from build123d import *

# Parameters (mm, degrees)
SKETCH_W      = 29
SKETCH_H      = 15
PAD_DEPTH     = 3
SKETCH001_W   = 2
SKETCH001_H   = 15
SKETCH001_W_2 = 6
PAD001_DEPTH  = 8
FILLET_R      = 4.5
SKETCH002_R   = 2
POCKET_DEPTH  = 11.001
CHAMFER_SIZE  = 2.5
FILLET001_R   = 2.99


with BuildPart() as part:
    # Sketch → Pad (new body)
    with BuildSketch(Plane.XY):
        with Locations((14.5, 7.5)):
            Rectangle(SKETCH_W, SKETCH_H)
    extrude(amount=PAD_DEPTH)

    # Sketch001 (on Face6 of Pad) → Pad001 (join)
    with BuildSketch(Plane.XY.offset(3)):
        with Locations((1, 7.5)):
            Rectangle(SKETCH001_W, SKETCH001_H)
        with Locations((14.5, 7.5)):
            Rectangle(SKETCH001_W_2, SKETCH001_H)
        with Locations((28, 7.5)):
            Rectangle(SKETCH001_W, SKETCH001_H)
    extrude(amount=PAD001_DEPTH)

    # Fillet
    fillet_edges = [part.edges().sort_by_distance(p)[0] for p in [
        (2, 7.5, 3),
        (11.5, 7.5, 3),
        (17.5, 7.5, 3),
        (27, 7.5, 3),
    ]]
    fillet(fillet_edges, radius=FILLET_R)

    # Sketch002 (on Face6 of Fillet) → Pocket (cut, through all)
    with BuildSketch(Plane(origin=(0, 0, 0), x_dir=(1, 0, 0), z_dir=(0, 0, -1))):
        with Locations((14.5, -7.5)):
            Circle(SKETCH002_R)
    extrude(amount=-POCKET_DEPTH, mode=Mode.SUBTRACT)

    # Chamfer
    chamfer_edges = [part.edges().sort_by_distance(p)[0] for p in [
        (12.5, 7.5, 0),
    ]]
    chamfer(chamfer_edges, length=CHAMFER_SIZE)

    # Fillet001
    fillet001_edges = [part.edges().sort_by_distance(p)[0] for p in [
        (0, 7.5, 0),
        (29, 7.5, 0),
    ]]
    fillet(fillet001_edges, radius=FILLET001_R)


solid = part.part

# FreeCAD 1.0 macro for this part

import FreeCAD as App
import Part
import Sketcher


def edges_at(feature, points):
    """Names of the edges that pass closest to the given points."""
    edges = feature.Shape.Edges
    near = lambda p: min(range(len(edges)), key=lambda i: edges[i].distToShape(Part.Vertex(*p))[0])
    return sorted({f"Edge{near(p) + 1}" for p in points})


def add_polygon(sketch, points):
    """Adds a closed chain of lines whose ends are joined by coincident constraints."""
    first, n = sketch.GeometryCount, len(points)
    for a, b in zip(points, points[1:] + points[:1]):
        sketch.addGeometry(Part.LineSegment(App.Vector(*a, 0), App.Vector(*b, 0)), False)
    for i in range(n):
        sketch.addConstraint(Sketcher.Constraint("Coincident", first + i, 2, first + (i + 1) % n, 1))

doc = App.newDocument("Part")
body = doc.addObject("PartDesign::Body", "Body")

sketch1 = body.newObject("Sketcher::SketchObject", "Sketch")
sketch1.AttachmentSupport = (doc.getObject("XY_Plane"), [""])
sketch1.MapMode = "FlatFace"
add_polygon(sketch1, [(0, 15), (0, 0), (29, 0), (29, 15)])
sketch1.addConstraint([
    Sketcher.Constraint("Vertical", 0),
    Sketcher.Constraint("Horizontal", 1),
    Sketcher.Constraint("Vertical", 2),
    Sketcher.Constraint("Horizontal", 3),
    Sketcher.Constraint("Coincident", 0, 2, -1, 1),
    Sketcher.Constraint("DistanceX", 1, 1, 1, 2, 29.0),
    Sketcher.Constraint("DistanceY", 0, 2, 0, 1, 15.0),
])
pad1 = body.newObject("PartDesign::Pad", "Pad")
pad1.Profile = sketch1
pad1.Length = 3

sketch2 = body.newObject("Sketcher::SketchObject", "Sketch001")
sketch2.AttachmentSupport = (doc.getObject("XY_Plane"), [""])
sketch2.MapMode = "FlatFace"
sketch2.AttachmentOffset = App.Placement(App.Vector(0, 0, 3), App.Rotation())
add_polygon(sketch2, [(0, 15), (0, 0), (2, 0), (2, 15)])
add_polygon(sketch2, [(11.5, 15), (11.5, 0), (17.5, 0), (17.5, 15)])
add_polygon(sketch2, [(27, 15), (27, 0), (29, 0), (29, 15)])
sketch2.addConstraint([
    Sketcher.Constraint("Vertical", 0),
    Sketcher.Constraint("Horizontal", 1),
    Sketcher.Constraint("Vertical", 2),
    Sketcher.Constraint("Horizontal", 3),
    Sketcher.Constraint("Vertical", 4),
    Sketcher.Constraint("Horizontal", 5),
    Sketcher.Constraint("Vertical", 6),
    Sketcher.Constraint("Horizontal", 7),
    Sketcher.Constraint("Vertical", 8),
    Sketcher.Constraint("Horizontal", 9),
    Sketcher.Constraint("Vertical", 10),
    Sketcher.Constraint("Horizontal", 11),
    Sketcher.Constraint("Coincident", 0, 2, -1, 1),
    Sketcher.Constraint("PointOnObject", 4, 2, -1),
    Sketcher.Constraint("PointOnObject", 8, 2, -1),
    Sketcher.Constraint("Horizontal", 3, 2, 6, 2),
    Sketcher.Constraint("Horizontal", 7, 2, 10, 2),
    Sketcher.Constraint("Equal", 3, 9),
    Sketcher.Constraint("DistanceX", 1, 1, 1, 2, 2.0),
    Sketcher.Constraint("DistanceX", 5, 1, 5, 2, 6.0),
    Sketcher.Constraint("DistanceY", 0, 2, 0, 1, 15.0),
    Sketcher.Constraint("DistanceX", -1, 1, 8, 2, 27.0),
    Sketcher.Constraint("DistanceX", -1, 1, 4, 2, 11.5),
])
pad2 = body.newObject("PartDesign::Pad", "Pad001")
pad2.Profile = sketch2
pad2.Length = 8
doc.recompute()

fillet = body.newObject("PartDesign::Fillet", "Fillet")
fillet.Base = (pad2, edges_at(pad2, [
    (2, 7.5, 3),
    (11.5, 7.5, 3),
    (17.5, 7.5, 3),
    (27, 7.5, 3),
]))
fillet.Radius = 4.5

sketch3 = body.newObject("Sketcher::SketchObject", "Sketch002")
sketch3.AttachmentSupport = (doc.getObject("XY_Plane"), [""])
sketch3.MapMode = "FlatFace"
sketch3.addGeometry(Part.Circle(App.Vector(14.5, 7.5, 0), App.Vector(0, 0, 1), 2), False)
sketch3.addConstraint([
    Sketcher.Constraint("Diameter", 0, 4.0),
    Sketcher.Constraint("DistanceX", -1, 1, 0, 3, 14.5),
    Sketcher.Constraint("DistanceY", -1, 1, 0, 3, 7.5),
])
pocket1 = body.newObject("PartDesign::Pocket", "Pocket")
pocket1.Profile = sketch3
pocket1.Type = "ThroughAll"
pocket1.Reversed = True
doc.recompute()

chamfer = body.newObject("PartDesign::Chamfer", "Chamfer")
chamfer.Base = (pocket1, edges_at(pocket1, [(12.5, 7.5, 0)]))
chamfer.Size = 2.5
doc.recompute()

fillet2 = body.newObject("PartDesign::Fillet", "Fillet001")
fillet2.Base = (chamfer, edges_at(chamfer, [(0, 7.5, 0), (29, 7.5, 0)]))
fillet2.Radius = 2.99

doc.recompute()
